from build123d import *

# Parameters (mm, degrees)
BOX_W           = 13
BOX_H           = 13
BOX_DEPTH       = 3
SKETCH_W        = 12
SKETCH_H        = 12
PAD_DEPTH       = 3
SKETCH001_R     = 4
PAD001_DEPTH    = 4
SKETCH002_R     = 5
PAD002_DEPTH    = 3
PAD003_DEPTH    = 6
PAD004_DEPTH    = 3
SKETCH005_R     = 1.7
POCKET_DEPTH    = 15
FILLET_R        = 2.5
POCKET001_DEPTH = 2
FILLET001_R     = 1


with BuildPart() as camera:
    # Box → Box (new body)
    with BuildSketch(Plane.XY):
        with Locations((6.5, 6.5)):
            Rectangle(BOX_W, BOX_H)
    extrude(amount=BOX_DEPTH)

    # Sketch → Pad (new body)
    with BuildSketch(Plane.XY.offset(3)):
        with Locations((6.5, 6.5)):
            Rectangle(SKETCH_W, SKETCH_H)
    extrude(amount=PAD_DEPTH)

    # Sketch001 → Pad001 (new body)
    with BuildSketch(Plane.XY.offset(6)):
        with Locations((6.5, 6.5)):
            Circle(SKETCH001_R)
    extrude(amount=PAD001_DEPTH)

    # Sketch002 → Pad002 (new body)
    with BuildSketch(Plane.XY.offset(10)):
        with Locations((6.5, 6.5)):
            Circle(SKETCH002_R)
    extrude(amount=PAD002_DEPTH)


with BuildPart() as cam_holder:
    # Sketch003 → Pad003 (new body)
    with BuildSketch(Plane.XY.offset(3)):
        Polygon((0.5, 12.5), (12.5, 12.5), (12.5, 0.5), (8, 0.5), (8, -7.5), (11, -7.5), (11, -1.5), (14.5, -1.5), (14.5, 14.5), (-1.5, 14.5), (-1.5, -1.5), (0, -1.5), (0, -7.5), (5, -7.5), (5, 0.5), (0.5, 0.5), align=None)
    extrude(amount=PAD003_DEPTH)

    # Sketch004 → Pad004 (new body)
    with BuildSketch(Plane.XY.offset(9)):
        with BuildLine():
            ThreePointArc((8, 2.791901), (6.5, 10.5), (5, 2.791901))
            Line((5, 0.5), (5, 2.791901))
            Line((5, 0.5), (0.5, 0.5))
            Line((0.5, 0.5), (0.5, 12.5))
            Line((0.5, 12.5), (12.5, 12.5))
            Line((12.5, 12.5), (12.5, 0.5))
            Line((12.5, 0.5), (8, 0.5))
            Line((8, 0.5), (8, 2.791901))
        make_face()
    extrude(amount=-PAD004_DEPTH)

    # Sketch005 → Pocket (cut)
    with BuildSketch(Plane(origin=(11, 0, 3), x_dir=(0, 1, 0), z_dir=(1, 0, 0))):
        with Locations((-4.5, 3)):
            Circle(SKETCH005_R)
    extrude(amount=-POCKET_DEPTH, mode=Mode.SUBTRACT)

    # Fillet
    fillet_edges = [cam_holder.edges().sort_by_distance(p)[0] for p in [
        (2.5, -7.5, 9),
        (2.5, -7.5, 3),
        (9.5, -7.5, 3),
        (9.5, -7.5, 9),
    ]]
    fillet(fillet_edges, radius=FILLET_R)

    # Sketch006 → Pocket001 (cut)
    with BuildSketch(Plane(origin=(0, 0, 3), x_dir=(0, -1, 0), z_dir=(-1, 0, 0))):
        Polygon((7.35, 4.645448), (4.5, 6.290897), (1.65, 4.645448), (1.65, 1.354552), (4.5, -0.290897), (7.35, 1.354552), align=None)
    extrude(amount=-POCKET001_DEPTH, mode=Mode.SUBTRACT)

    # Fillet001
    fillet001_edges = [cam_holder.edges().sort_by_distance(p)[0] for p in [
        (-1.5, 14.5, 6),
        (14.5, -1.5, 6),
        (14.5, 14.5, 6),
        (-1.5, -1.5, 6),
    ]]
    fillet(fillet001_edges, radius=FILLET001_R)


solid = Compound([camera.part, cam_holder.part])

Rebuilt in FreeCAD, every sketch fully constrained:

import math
import FreeCAD as App
import Part
import Sketcher
from FreeCAD import Vector
Q = App.Units.Quantity


def edges_at(feature, points):
    """Names of the edges that pass closest to the given points."""
    edges = feature.Shape.Edges
    near = lambda p: min(range(len(edges)), key=lambda i: edges[i].distToShape(Part.Vertex(*p))[0])
    return sorted({f"Edge{near(p) + 1}" for p in points})


def add_polygon(sketch, points):
    """Adds a closed chain of lines whose ends are joined by coincident constraints."""
    first, n = sketch.GeometryCount, len(points)
    for a, b in zip(points, points[1:] + points[:1]):
        sketch.addGeometry(Part.LineSegment(App.Vector(*a, 0), App.Vector(*b, 0)), False)
    for i in range(n):
        sketch.addConstraint(Sketcher.Constraint("Coincident", first + i, 2, first + (i + 1) % n, 1))

doc = App.newDocument("Part")
body = doc.addObject("PartDesign::Body", "Body")

sketch1 = doc.addObject("Sketcher::SketchObject", "Sketch")
body.addObject(sketch1)
sketch1.AttachmentSupport = (doc.XY_Plane, [""])
sketch1.MapMode = "FlatFace"
add_polygon(sketch1, [(0, 13), (0, 0), (13, 0), (13, 13)])
sketch1.addConstraint(Sketcher.Constraint("Vertical", 0))
sketch1.addConstraint(Sketcher.Constraint("Horizontal", 1))
sketch1.addConstraint(Sketcher.Constraint("Vertical", 2))
sketch1.addConstraint(Sketcher.Constraint("Horizontal", 3))
sketch1.addConstraint(Sketcher.Constraint("Coincident", 0, 2, -1, 1))
sketch1.addConstraint(Sketcher.Constraint("Equal", 3, 0))
sketch1.addConstraint(Sketcher.Constraint("DistanceX", 1, 1, 1, 2, 13.0))
pad1 = doc.addObject("PartDesign::Pad", "Pad")
body.addObject(pad1)
pad1.Profile = sketch1
pad1.Length = 3

sketch2 = doc.addObject("Sketcher::SketchObject", "Sketch001")
body.addObject(sketch2)
sketch2.AttachmentSupport = (doc.XY_Plane, [""])
sketch2.MapMode = "FlatFace"
sketch2.AttachmentOffset = App.Placement(Vector(0, 0, 3), App.Rotation())
add_polygon(sketch2, [(0, 12), (0, 0), (12, 0), (12, 12)])
sketch2.addConstraint(Sketcher.Constraint("Vertical", 0))
sketch2.addConstraint(Sketcher.Constraint("Horizontal", 1))
sketch2.addConstraint(Sketcher.Constraint("Vertical", 2))
sketch2.addConstraint(Sketcher.Constraint("Horizontal", 3))
sketch2.addConstraint(Sketcher.Constraint("Equal", 3, 0))
sketch2.addConstraint(Sketcher.Constraint("DistanceX", 1, 1, 1, 2, 12.0))
sketch2.addConstraint(Sketcher.Constraint("DistanceX", -1, 1, 0, 2, 0.5))
sketch2.addConstraint(Sketcher.Constraint("DistanceY", -1, 1, 0, 2, 0.5))
pad2 = doc.addObject("PartDesign::Pad", "Pad001")
body.addObject(pad2)
pad2.Profile = sketch2
pad2.Length = 3

sketch3 = doc.addObject("Sketcher::SketchObject", "Sketch002")
body.addObject(sketch3)
sketch3.AttachmentSupport = (doc.XY_Plane, [""])
sketch3.MapMode = "FlatFace"
sketch3.AttachmentOffset = App.Placement(Vector(0, 0, 6), App.Rotation())
sketch3.addGeometry(Part.Circle(Vector(6.5, 6.5, 0), Vector(0, 0, 1), 4), False)
sketch3.addConstraint(Sketcher.Constraint("Diameter", 0, 8.0))
sketch3.addConstraint(Sketcher.Constraint("DistanceX", -1, 1, 0, 3, 6.5))
sketch3.addConstraint(Sketcher.Constraint("DistanceY", -1, 1, 0, 3, 6.5))
pad3 = doc.addObject("PartDesign::Pad", "Pad002")
body.addObject(pad3)
pad3.Profile = sketch3
pad3.Length = 4

sketch4 = doc.addObject("Sketcher::SketchObject", "Sketch003")
body.addObject(sketch4)
sketch4.AttachmentSupport = (doc.XY_Plane, [""])
sketch4.MapMode = "FlatFace"
sketch4.AttachmentOffset = App.Placement(Vector(0, 0, 10), App.Rotation())
sketch4.addGeometry(Part.Circle(Vector(6, 6, 0), Vector(0, 0, 1), 5), False)
sketch4.addConstraint(Sketcher.Constraint("Diameter", 0, 10.0))
sketch4.addConstraint(Sketcher.Constraint("DistanceX", -1, 1, 0, 3, 6.5))
sketch4.addConstraint(Sketcher.Constraint("DistanceY", -1, 1, 0, 3, 6.5))
pad4 = doc.addObject("PartDesign::Pad", "Pad003")
body.addObject(pad4)
pad4.Profile = sketch4
pad4.Length = 3
body2 = doc.addObject("PartDesign::Body", "Body001")

sketch5 = doc.addObject("Sketcher::SketchObject", "Sketch004")
body2.addObject(sketch5)
sketch5.AttachmentSupport = (doc.getObject("XY_Plane001"), [""])
sketch5.MapMode = "FlatFace"
sketch5.AttachmentOffset = App.Placement(Vector(0, 0, 3), App.Rotation())
add_polygon(sketch5, [(0.5, 12.5), (12.5, 12.5), (12.5, 0.5), (8, 0.5), (8, -7.5), (11, -7.5), (11, -1.5), (14.5, -1.5), (14.5, 14.5), (-1.5, 14.5), (-1.5, -1.5), (0, -1.5), (0, -7.5), (5, -7.5), (5, 0.5), (0.5, 0.5)])
sketch5.addConstraint(Sketcher.Constraint("Horizontal", 0))
sketch5.addConstraint(Sketcher.Constraint("Vertical", 1))
sketch5.addConstraint(Sketcher.Constraint("Horizontal", 2))
sketch5.addConstraint(Sketcher.Constraint("Vertical", 3))
sketch5.addConstraint(Sketcher.Constraint("Horizontal", 4))
sketch5.addConstraint(Sketcher.Constraint("Vertical", 5))
sketch5.addConstraint(Sketcher.Constraint("Horizontal", 6))
sketch5.addConstraint(Sketcher.Constraint("Vertical", 7))
sketch5.addConstraint(Sketcher.Constraint("Horizontal", 8))
sketch5.addConstraint(Sketcher.Constraint("Vertical", 9))
sketch5.addConstraint(Sketcher.Constraint("Horizontal", 10))
sketch5.addConstraint(Sketcher.Constraint("Vertical", 11))
sketch5.addConstraint(Sketcher.Constraint("Horizontal", 12))
sketch5.addConstraint(Sketcher.Constraint("Vertical", 13))
sketch5.addConstraint(Sketcher.Constraint("Horizontal", 14))
sketch5.addConstraint(Sketcher.Constraint("Vertical", 15))
sketch5.addConstraint(Sketcher.Constraint("PointOnObject", 10, 2, -2))
sketch5.addConstraint(Sketcher.Constraint("Horizontal", 6, 2, 9, 2))
sketch5.addConstraint(Sketcher.Constraint("Horizontal", 4, 2, 11, 2))
sketch5.addConstraint(Sketcher.Constraint("Horizontal", 2, 2, 13, 2))
sketch5.addConstraint(Sketcher.Constraint("Equal", 2, 14))
sketch5.addConstraint(Sketcher.Constraint("Equal", 0, 1))
sketch5.addConstraint(Sketcher.Constraint("Equal", 8, 7))
sketch5.addConstraint(Sketcher.Constraint("DistanceX", 0, 1, 0, 2, 12.0))
sketch5.addConstraint(Sketcher.Constraint("DistanceX", 4, 1, 4, 2, 3.0))
sketch5.addConstraint(Sketcher.Constraint("DistanceX", 8, 2, 8, 1, 16.0))
sketch5.addConstraint(Sketcher.Constraint("DistanceX", 12, 1, 12, 2, 5.0))
sketch5.addConstraint(Sketcher.Constraint("DistanceY", 3, 2, 3, 1, 8.0))
sketch5.addConstraint(Sketcher.Constraint("DistanceY", 5, 1, 5, 2, 6.0))
sketch5.addConstraint(Sketcher.Constraint("DistanceX", 2, 2, 2, 1, 4.5))
sketch5.addConstraint(Sketcher.Constraint("DistanceX", 6, 1, 6, 2, 3.5))
sketch5.addConstraint(Sketcher.Constraint("DistanceY", -1, 1, 0, 2, 12.5))
pad5 = doc.addObject("PartDesign::Pad", "Pad004")
body2.addObject(pad5)
pad5.Profile = sketch5
pad5.Length = 6

sketch6 = doc.addObject("Sketcher::SketchObject", "Sketch005")
body2.addObject(sketch6)
sketch6.AttachmentSupport = (doc.getObject("XY_Plane001"), [""])
sketch6.MapMode = "FlatFace"
sketch6.AttachmentOffset = App.Placement(Vector(0, 0, 9), App.Rotation())
sketch6.addGeometry(Part.ArcOfCircle(Part.Circle(Vector(6.5, 6.5, 0), Vector(0, 0, 1), 4), math.radians(-68), math.radians(248)), False)
sketch6.addGeometry(Part.LineSegment(Vector(8, 2.8, 0), Vector(8, 0.5, 0)), False)
sketch6.addGeometry(Part.LineSegment(Vector(8, 0.5, 0), Vector(12.5, 0.5, 0)), False)
sketch6.addGeometry(Part.LineSegment(Vector(12.5, 0.5, 0), Vector(12.5, 12.5, 0)), False)
sketch6.addGeometry(Part.LineSegment(Vector(12.5, 12.5, 0), Vector(0.5, 12.5, 0)), False)
sketch6.addGeometry(Part.LineSegment(Vector(0.5, 12.5, 0), Vector(0.5, 0.5, 0)), False)
sketch6.addGeometry(Part.LineSegment(Vector(0.5, 0.5, 0), Vector(5, 0.5, 0)), False)
sketch6.addGeometry(Part.LineSegment(Vector(5, 0.5, 0), Vector(5, 2.8, 0)), False)
sketch6.addConstraint(Sketcher.Constraint("Coincident", 0, 1, 1, 1))
sketch6.addConstraint(Sketcher.Constraint("Coincident", 1, 2, 2, 1))
sketch6.addConstraint(Sketcher.Constraint("Coincident", 2, 2, 3, 1))
sketch6.addConstraint(Sketcher.Constraint("Coincident", 3, 2, 4, 1))
sketch6.addConstraint(Sketcher.Constraint("Coincident", 4, 2, 5, 1))
sketch6.addConstraint(Sketcher.Constraint("Coincident", 5, 2, 6, 1))
sketch6.addConstraint(Sketcher.Constraint("Coincident", 6, 2, 7, 1))
sketch6.addConstraint(Sketcher.Constraint("Coincident", 7, 2, 0, 2))
sketch6.addConstraint(Sketcher.Constraint("Vertical", 1))
sketch6.addConstraint(Sketcher.Constraint("Horizontal", 2))
sketch6.addConstraint(Sketcher.Constraint("Vertical", 3))
sketch6.addConstraint(Sketcher.Constraint("Horizontal", 4))
sketch6.addConstraint(Sketcher.Constraint("Vertical", 5))
sketch6.addConstraint(Sketcher.Constraint("Horizontal", 6))
sketch6.addConstraint(Sketcher.Constraint("Vertical", 7))
sketch6.addConstraint(Sketcher.Constraint("Horizontal", 2, 2, 5, 2))
sketch6.addConstraint(Sketcher.Constraint("Horizontal", 0, 1, 7, 2))
sketch6.addConstraint(Sketcher.Constraint("Equal", 2, 6))
sketch6.addConstraint(Sketcher.Constraint("Equal", 4, 3))
sketch6.addConstraint(Sketcher.Constraint("Radius", 0, 4.0))
sketch6.addConstraint(Sketcher.Constraint("DistanceX", 4, 2, 4, 1, 12.0))
sketch6.addConstraint(Sketcher.Constraint("DistanceX", 2, 1, 2, 2, 4.5))
sketch6.addConstraint(Sketcher.Constraint("DistanceX", -1, 1, 0, 1, 8.0))
sketch6.addConstraint(Sketcher.Constraint("DistanceY", 1, 2, 0, 3, 6.0))
sketch6.addConstraint(Sketcher.Constraint("DistanceY", -1, 1, 0, 3, 6.5))
pad6 = doc.addObject("PartDesign::Pad", "Pad005")
body2.addObject(pad6)
pad6.Profile = sketch6
pad6.Length = 3
pad6.Reversed = True

sketch7 = doc.addObject("Sketcher::SketchObject", "Sketch006")
body2.addObject(sketch7)
sketch7.AttachmentSupport = (doc.getObject("YZ_Plane001"), [""])
sketch7.MapMode = "FlatFace"
sketch7.AttachmentOffset = App.Placement(Vector(0, 0, 11), App.Rotation())
sketch7.addGeometry(Part.Circle(Vector(-4.5, 6, 0), Vector(0, 0, 1), 1.7), False)
sketch7.addConstraint(Sketcher.Constraint("Diameter", 0, 3.4))
sketch7.addConstraint(Sketcher.Constraint("DistanceY", -1, 1, 0, 3, 6.0))
sketch7.addConstraint(Sketcher.Constraint("DistanceX", 0, 3, -1, 1, 4.5))
pocket1 = doc.addObject("PartDesign::Pocket", "Pocket")
body2.addObject(pocket1)
pocket1.Profile = sketch7
pocket1.Length = 15
doc.recompute()

fillet = doc.addObject("PartDesign::Fillet", "Fillet")
body2.addObject(fillet)
fillet.Base = (pocket1, edges_at(pocket1, [
    (2.5, -7.5, 9),
    (2.5, -7.5, 3),
    (9.5, -7.5, 3),
    (9.5, -7.5, 9),
]))
fillet.Radius = 2.5

sketch8 = doc.addObject("Sketcher::SketchObject", "Sketch007")
body2.addObject(sketch8)
sketch8.AttachmentSupport = (doc.getObject("YZ_Plane001"), [""])
sketch8.MapMode = "FlatFace"
add_polygon(sketch8, [(-7.3, 7.6), (-4.5, 9.3), (-1.6, 7.6), (-1.6, 4.4), (-4.5, 2.7), (-7.3, 4.4)])
sketch8.addConstraint(Sketcher.Constraint("Vertical", 2))
sketch8.addConstraint(Sketcher.Constraint("Vertical", 5))
sketch8.addConstraint(Sketcher.Constraint("Parallel", 0, 3))
sketch8.addConstraint(Sketcher.Constraint("Parallel", 1, 4))
sketch8.addConstraint(Sketcher.Constraint("Horizontal", 2, 2, 4, 2))
sketch8.addConstraint(Sketcher.Constraint("Horizontal", 1, 2, 5, 2))
sketch8.addConstraint(Sketcher.Constraint("Vertical", 0, 2, 3, 2))
sketch8.addConstraint(Sketcher.Constraint("Angle", 0, Q("30.000011 deg")))
sketch8.addConstraint(Sketcher.Constraint("DistanceX", 0, 2, -1, 1, 4.5))
sketch8.addConstraint(Sketcher.Constraint("DistanceX", 4, 2, 2, 2, 5.7))
sketch8.addConstraint(Sketcher.Constraint("DistanceY", 2, 2, 2, 1, 3.290896))
sketch8.addConstraint(Sketcher.Constraint("DistanceY", -1, 1, 0, 2, 9.290897))
pocket2 = doc.addObject("PartDesign::Pocket", "Pocket001")
body2.addObject(pocket2)
pocket2.Profile = sketch8
pocket2.Length = 2
pocket2.Reversed = True
doc.recompute()

fillet2 = doc.addObject("PartDesign::Fillet", "Fillet001")
body2.addObject(fillet2)
fillet2.Base = (pocket2, edges_at(pocket2, [
    (-1.5, 14.5, 6),
    (14.5, -1.5, 6),
    (14.5, 14.5, 6),
    (-1.5, -1.5, 6),
]))
fillet2.Radius = 1

doc.recompute()
